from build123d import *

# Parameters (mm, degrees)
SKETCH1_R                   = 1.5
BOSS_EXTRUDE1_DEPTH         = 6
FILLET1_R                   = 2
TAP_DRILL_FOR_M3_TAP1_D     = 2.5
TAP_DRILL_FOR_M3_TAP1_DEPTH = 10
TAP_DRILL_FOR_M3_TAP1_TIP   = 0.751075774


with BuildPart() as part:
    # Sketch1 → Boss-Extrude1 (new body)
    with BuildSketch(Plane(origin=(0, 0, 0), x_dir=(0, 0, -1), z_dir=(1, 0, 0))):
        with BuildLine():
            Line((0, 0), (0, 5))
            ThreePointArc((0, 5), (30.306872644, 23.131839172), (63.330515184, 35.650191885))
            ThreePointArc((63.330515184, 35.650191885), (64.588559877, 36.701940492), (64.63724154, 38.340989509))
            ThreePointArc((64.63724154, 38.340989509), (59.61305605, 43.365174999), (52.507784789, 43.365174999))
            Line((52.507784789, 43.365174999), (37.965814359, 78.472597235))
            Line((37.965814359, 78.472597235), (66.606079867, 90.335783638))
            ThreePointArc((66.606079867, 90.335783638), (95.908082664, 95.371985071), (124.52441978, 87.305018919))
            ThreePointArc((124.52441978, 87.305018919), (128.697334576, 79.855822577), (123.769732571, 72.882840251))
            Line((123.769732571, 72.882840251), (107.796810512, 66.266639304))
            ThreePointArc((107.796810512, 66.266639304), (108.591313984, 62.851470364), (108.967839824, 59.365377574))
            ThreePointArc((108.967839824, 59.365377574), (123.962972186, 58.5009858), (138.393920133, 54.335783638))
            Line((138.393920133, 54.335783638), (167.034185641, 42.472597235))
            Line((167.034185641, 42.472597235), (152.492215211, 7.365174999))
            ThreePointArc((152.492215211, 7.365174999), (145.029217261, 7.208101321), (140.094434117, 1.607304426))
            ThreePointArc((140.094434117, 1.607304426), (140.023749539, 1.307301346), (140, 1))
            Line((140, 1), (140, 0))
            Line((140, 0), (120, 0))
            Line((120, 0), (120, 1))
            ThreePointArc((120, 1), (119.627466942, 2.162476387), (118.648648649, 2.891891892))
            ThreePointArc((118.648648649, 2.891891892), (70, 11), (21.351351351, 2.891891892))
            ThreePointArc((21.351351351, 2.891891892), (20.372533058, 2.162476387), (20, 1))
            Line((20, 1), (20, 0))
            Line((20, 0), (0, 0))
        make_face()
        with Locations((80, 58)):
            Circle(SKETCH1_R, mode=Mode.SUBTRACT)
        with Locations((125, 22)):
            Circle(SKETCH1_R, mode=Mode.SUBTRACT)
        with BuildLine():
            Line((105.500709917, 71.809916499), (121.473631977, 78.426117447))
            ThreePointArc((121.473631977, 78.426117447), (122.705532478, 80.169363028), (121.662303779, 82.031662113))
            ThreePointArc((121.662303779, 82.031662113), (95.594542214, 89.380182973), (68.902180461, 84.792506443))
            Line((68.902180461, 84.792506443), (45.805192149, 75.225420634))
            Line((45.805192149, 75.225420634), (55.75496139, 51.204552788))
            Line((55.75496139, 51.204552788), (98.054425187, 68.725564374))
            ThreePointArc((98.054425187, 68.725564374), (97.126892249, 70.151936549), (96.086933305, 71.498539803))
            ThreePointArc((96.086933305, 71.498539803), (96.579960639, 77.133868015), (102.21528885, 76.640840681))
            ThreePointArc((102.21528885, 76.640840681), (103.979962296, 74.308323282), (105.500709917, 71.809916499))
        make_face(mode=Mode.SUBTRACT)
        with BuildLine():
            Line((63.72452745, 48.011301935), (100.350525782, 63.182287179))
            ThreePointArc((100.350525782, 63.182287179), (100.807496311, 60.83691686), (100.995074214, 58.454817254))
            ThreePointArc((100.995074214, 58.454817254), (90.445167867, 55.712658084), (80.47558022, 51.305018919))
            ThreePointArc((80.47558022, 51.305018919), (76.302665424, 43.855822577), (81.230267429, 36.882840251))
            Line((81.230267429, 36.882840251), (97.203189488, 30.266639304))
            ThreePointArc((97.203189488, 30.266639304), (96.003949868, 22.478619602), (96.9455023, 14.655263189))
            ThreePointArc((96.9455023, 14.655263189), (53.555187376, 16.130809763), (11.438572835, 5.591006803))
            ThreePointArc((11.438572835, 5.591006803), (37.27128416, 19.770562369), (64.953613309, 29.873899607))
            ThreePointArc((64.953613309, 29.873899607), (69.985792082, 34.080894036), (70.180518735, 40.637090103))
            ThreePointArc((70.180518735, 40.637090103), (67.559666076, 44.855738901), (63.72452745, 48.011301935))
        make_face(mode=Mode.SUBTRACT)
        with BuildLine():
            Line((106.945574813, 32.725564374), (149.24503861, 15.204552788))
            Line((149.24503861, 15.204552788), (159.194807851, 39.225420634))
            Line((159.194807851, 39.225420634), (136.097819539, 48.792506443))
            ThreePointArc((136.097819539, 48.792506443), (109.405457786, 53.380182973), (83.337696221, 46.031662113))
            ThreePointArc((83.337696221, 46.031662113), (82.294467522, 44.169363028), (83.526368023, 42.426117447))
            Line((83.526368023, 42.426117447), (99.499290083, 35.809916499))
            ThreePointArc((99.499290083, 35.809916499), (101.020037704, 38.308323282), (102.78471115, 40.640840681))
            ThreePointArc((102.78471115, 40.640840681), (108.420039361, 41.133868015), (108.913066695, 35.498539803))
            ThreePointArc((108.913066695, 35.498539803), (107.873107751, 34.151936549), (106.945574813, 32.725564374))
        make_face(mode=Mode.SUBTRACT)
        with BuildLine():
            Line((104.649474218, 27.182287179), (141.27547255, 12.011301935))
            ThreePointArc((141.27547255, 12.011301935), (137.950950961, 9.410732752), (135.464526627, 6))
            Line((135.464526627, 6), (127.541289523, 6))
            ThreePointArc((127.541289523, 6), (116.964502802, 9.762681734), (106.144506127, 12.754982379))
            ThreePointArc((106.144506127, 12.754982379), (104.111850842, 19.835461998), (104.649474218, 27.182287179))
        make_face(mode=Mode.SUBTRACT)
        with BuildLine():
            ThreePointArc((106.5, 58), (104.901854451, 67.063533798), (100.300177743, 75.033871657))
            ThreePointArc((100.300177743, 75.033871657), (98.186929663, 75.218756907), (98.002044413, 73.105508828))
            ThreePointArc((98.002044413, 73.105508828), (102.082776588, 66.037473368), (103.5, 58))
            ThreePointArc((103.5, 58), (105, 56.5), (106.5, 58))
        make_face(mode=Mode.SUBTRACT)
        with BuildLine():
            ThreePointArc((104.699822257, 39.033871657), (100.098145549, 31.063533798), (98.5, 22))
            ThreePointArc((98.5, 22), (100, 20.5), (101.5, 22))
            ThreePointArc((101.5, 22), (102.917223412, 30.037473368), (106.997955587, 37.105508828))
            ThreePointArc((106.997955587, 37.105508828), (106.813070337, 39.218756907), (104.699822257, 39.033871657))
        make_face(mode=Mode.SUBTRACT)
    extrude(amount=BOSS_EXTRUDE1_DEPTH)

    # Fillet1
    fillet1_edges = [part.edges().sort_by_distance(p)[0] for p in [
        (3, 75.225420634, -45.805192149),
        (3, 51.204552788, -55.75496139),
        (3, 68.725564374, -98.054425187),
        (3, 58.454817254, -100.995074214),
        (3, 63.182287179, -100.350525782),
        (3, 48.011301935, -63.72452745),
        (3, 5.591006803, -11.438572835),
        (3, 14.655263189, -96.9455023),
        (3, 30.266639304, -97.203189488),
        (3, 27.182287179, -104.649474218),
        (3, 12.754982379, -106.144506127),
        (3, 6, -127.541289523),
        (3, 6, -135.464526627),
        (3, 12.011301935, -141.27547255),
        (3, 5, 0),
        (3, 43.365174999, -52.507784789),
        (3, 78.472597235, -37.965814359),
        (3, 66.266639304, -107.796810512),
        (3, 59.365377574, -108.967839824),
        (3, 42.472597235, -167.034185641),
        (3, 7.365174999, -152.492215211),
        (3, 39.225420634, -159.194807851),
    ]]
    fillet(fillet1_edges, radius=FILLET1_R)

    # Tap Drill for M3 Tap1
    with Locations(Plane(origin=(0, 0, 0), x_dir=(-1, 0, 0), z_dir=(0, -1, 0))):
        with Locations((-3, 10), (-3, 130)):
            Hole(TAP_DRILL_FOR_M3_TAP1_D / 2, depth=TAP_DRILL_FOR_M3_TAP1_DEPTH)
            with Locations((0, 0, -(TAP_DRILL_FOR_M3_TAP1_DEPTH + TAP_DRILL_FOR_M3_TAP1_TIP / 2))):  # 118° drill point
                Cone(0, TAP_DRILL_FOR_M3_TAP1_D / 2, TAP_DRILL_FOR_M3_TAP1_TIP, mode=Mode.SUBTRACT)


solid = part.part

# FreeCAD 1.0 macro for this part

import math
import FreeCAD as App
import Part
import Sketcher
from FreeCAD import Vector
Q = App.Units.Quantity


def edges_at(feature, points):
    """Names of the edges that pass closest to the given points."""
    edges = feature.Shape.Edges
    near = lambda p: min(range(len(edges)), key=lambda i: edges[i].distToShape(Part.Vertex(*p))[0])
    return sorted({f"Edge{near(p) + 1}" for p in points})

doc = App.newDocument("Part")
params = doc.addObject("Spreadsheet::Sheet", "Params")
for row, (alias, value) in enumerate([
    ("sketch1_diameter", "3 mm"),
    ("sketch1_radius", "2 mm"),
    ("sketch1_radius2", "150 mm"),
    ("sketch1_radius3", "29 mm"),
    ("sketch1_radius4", "8 mm"),
    ("pad1_length", "6 mm"),
    ("fillet_radius", "2 mm"),
    ("sketch2_diameter", "2.5 mm"),
    ("hole_diameter", "2.5 mm"),
    ("hole_depth", "10 mm"),
], start=1):
    params.set(f"A{row}", alias)
    params.set(f"B{row}", "=" + value)
    params.setAlias(f"B{row}", alias)

body = doc.addObject("PartDesign::Body", "Body")

sketch1 = body.newObject("Sketcher::SketchObject", "Sketch")
sketch1.AttachmentSupport = (doc.getObject("YZ_Plane"), [""])
sketch1.MapMode = "FlatFace"
sketch1.addGeometry([
    Part.LineSegment(Vector(5, 0, 0), Vector(0, 0, 0)),
    Part.LineSegment(Vector(0, 0, 0), Vector(0, -20, 0)),
    Part.LineSegment(Vector(0, -20, 0), Vector(1, -20, 0)),
    Part.ArcOfCircle(Part.Circle(Vector(1, -22, 0), Vector(0, 0, 1), 2), math.radians(19), math.radians(90)),
    Part.ArcOfCircle(Part.Circle(Vector(-139, -70, 0), Vector(0, 0, 1), 150), math.radians(-19), math.radians(19)),
    Part.ArcOfCircle(Part.Circle(Vector(1, -118, 0), Vector(0, 0, 1), 2), math.radians(-90), math.radians(-19)),
    Part.LineSegment(Vector(1, -120, 0), Vector(0, -120, 0)),
    Part.LineSegment(Vector(0, -120, 0), Vector(0, -140, 0)),
    Part.LineSegment(Vector(0, -140, 0), Vector(1, -140, 0)),
    Part.ArcOfCircle(Part.Circle(Vector(1, -142, 0), Vector(0, 0, 1), 2), math.radians(72.32), math.radians(90)),
    Part.ArcOfCircle(Part.Circle(Vector(-1.2, -148.9, 0), Vector(0, 0, 1), 9.3), math.radians(-23), math.radians(72)),
    Part.LineSegment(Vector(7.4, -152.5, 0), Vector(42.5, -167, 0)),
    Part.LineSegment(Vector(42.5, -167, 0), Vector(54.3, -138.4, 0)),
    Part.ArcOfCircle(Part.Circle(Vector(-7.9, -112.6, 0), Vector(0, 0, 1), 67.4), math.radians(-22), math.radians(3)),
    Part.ArcOfCircle(Part.Circle(Vector(58, -80, 0), Vector(0, 0, 1), 29), math.radians(-87.3), math.radians(-73.44)),
    Part.LineSegment(Vector(66.3, -107.8, 0), Vector(72.9, -123.8, 0)),
    Part.ArcOfCircle(Part.Circle(Vector(80.3, -120.7, 0), Vector(0, 0, 1), 8), math.radians(-157), math.radians(-28)),
    Part.ArcOfCircle(Part.Circle(Vector(28.1, -92.4, 0), Vector(0, 0, 1), 67.4), math.radians(-28), math.radians(22)),
    Part.LineSegment(Vector(90.3, -66.6, 0), Vector(78.5, -38, 0)),
    Part.LineSegment(Vector(78.5, -38, 0), Vector(43.4, -52.5, 0)),
    Part.ArcOfCircle(Part.Circle(Vector(34.8, -56.1, 0), Vector(0, 0, 1), 9.3), math.radians(-67), math.radians(22)),
    Part.ArcOfCircle(Part.Circle(Vector(37.6, -62.8, 0), Vector(0, 0, 1), 2), math.radians(-164), math.radians(-67)),
    Part.ArcOfCircle(Part.Circle(Vector(-156.9, -117.4, 0), Vector(0, 0, 1), 200), math.radians(16), math.radians(36)),
    Part.LineSegment(Vector(27.2, -104.6, 0), Vector(12, -141.3, 0)),
    Part.ArcOfCircle(Part.Circle(Vector(-1.2, -148.9, 0), Vector(0, 0, 1), 15.3), math.radians(30), math.radians(62)),
    Part.LineSegment(Vector(6, -135.5, 0), Vector(6, -127.5, 0)),
    Part.ArcOfCircle(Part.Circle(Vector(-139, -70, 0), Vector(0, 0, 1), 156), math.radians(-21.64), math.radians(-13.4)),
    Part.ArcOfCircle(Part.Circle(Vector(22, -125, 0), Vector(0, 0, 1), 21), math.radians(76), math.radians(116)),
    Part.Circle(Vector(22, -125, 0), Vector(0, 0, 1), 1.5),
    Part.ArcOfCircle(Part.Circle(Vector(22, -125, 0), Vector(0, 0, 1), 21), math.radians(50), math.radians(59.29)),
    Part.ArcOfCircle(Part.Circle(Vector(38.1, -105.8, 0), Vector(0, 0, 1), 4), math.radians(-130), math.radians(50)),
    Part.ArcOfCircle(Part.Circle(Vector(22, -125, 0), Vector(0, 0, 1), 29), math.radians(50), math.radians(61.56)),
    Part.LineSegment(Vector(35.8, -99.5, 0), Vector(42.4, -83.5, 0)),
    Part.ArcOfCircle(Part.Circle(Vector(44.3, -84.3, 0), Vector(0, 0, 1), 2), math.radians(28), math.radians(157)),
    Part.ArcOfCircle(Part.Circle(Vector(-7.9, -112.6, 0), Vector(0, 0, 1), 61.4), math.radians(-23), math.radians(28)),
    Part.LineSegment(Vector(48.8, -136.1, 0), Vector(39.2, -159.2, 0)),
    Part.LineSegment(Vector(39.2, -159.2, 0), Vector(15.2, -149.2, 0)),
    Part.LineSegment(Vector(15.2, -149.2, 0), Vector(32.7, -106.9, 0)),
    Part.ArcOfCircle(Part.Circle(Vector(38.1, -105.8, 0), Vector(0, 0, 1), 1.5), math.radians(-130), math.radians(50)),
    Part.ArcOfCircle(Part.Circle(Vector(22, -125, 0), Vector(0, 0, 1), 23.5), math.radians(50), math.radians(90)),
    Part.ArcOfCircle(Part.Circle(Vector(22, -100, 0), Vector(0, 0, 1), 1.5), math.radians(90), math.radians(270)),
    Part.ArcOfCircle(Part.Circle(Vector(22, -125, 0), Vector(0, 0, 1), 26.5), math.radians(50), math.radians(90)),
    Part.LineSegment(Vector(48, -63.7, 0), Vector(63.2, -100.4, 0)),
    Part.ArcOfCircle(Part.Circle(Vector(58, -80, 0), Vector(0, 0, 1), 21), math.radians(-88.76), math.radians(-75.71)),
    Part.ArcOfCircle(Part.Circle(Vector(-7.9, -112.6, 0), Vector(0, 0, 1), 67.4), math.radians(9.93), math.radians(28.49)),
    Part.ArcOfCircle(Part.Circle(Vector(44.3, -84.3, 0), Vector(0, 0, 1), 8), math.radians(28), math.radians(157)),
    Part.LineSegment(Vector(36.9, -81.2, 0), Vector(30.3, -97.2, 0)),
    Part.ArcOfCircle(Part.Circle(Vector(22, -125, 0), Vector(0, 0, 1), 29), math.radians(73), math.radians(105)),
    Part.ArcOfCircle(Part.Circle(Vector(-139, -70, 0), Vector(0, 0, 1), 156), math.radians(-10), math.radians(22)),
    Part.ArcOfCircle(Part.Circle(Vector(-156.9, -117.4, 0), Vector(0, 0, 1), 194), math.radians(15.69), math.radians(33.12)),
    Part.ArcOfCircle(Part.Circle(Vector(37.6, -62.8, 0), Vector(0, 0, 1), 8), math.radians(-164), math.radians(-67)),
    Part.ArcOfCircle(Part.Circle(Vector(34.8, -56.1, 0), Vector(0, 0, 1), 15.3), math.radians(-67), math.radians(-30)),
    Part.ArcOfCircle(Part.Circle(Vector(58, -105, 0), Vector(0, 0, 1), 1.5), math.radians(90), math.radians(270)),
    Part.ArcOfCircle(Part.Circle(Vector(58, -80, 0), Vector(0, 0, 1), 23.5), math.radians(-90), math.radians(-50)),
    Part.ArcOfCircle(Part.Circle(Vector(74.1, -99.2, 0), Vector(0, 0, 1), 1.5), math.radians(-50), math.radians(130)),
    Part.ArcOfCircle(Part.Circle(Vector(58, -80, 0), Vector(0, 0, 1), 26.5), math.radians(-90), math.radians(-50)),
    Part.Circle(Vector(58, -80, 0), Vector(0, 0, 1), 1.5),
    Part.ArcOfCircle(Part.Circle(Vector(58, -80, 0), Vector(0, 0, 1), 29), math.radians(-61.56), math.radians(-50)),
    Part.ArcOfCircle(Part.Circle(Vector(74.1, -99.2, 0), Vector(0, 0, 1), 4), math.radians(-50), math.radians(130)),
    Part.ArcOfCircle(Part.Circle(Vector(58, -80, 0), Vector(0, 0, 1), 21), math.radians(-59.29), math.radians(-50)),
    Part.LineSegment(Vector(68.7, -98.1, 0), Vector(51.2, -55.8, 0)),
    Part.LineSegment(Vector(51.2, -55.8, 0), Vector(75.2, -45.8, 0)),
    Part.LineSegment(Vector(75.2, -45.8, 0), Vector(84.8, -68.9, 0)),
    Part.ArcOfCircle(Part.Circle(Vector(28.1, -92.4, 0), Vector(0, 0, 1), 61.4), math.radians(-28), math.radians(23)),
    Part.ArcOfCircle(Part.Circle(Vector(80.3, -120.7, 0), Vector(0, 0, 1), 2), math.radians(-157), math.radians(-28)),
    Part.LineSegment(Vector(78.4, -121.5, 0), Vector(71.8, -105.5, 0)),
], False)
sketch1.addConstraint([
    Sketcher.Constraint("Coincident", 0, 2, 1, 1),
    Sketcher.Constraint("Coincident", 1, 2, 2, 1),
    Sketcher.Constraint("Tangent", 2, 2, 3, 2),
    Sketcher.Constraint("Tangent", 3, 1, 4, 2),
    Sketcher.Constraint("Tangent", 4, 1, 5, 2),
    Sketcher.Constraint("Tangent", 5, 1, 6, 1),
    Sketcher.Constraint("Coincident", 6, 2, 7, 1),
    Sketcher.Constraint("Coincident", 7, 2, 8, 1),
    Sketcher.Constraint("Tangent", 8, 2, 9, 2),
    Sketcher.Constraint("Tangent", 9, 1, 10, 2),
    Sketcher.Constraint("Coincident", 10, 1, 11, 1),
    Sketcher.Constraint("Coincident", 11, 2, 12, 1),
    Sketcher.Constraint("Tangent", 12, 2, 13, 1),
    Sketcher.Constraint("Coincident", 13, 2, 14, 1),
    Sketcher.Constraint("Coincident", 14, 2, 15, 1),
    Sketcher.Constraint("Tangent", 15, 2, 16, 1),
    Sketcher.Constraint("Tangent", 16, 2, 17, 1),
    Sketcher.Constraint("Tangent", 17, 2, 18, 1),
    Sketcher.Constraint("Coincident", 18, 2, 19, 1),
    Sketcher.Constraint("Coincident", 19, 2, 20, 2),
    Sketcher.Constraint("Tangent", 20, 1, 21, 2),
    Sketcher.Constraint("Tangent", 21, 1, 22, 1),
    Sketcher.Constraint("Coincident", 22, 2, 0, 1),
    Sketcher.Constraint("Coincident", 23, 2, 24, 1),
    Sketcher.Constraint("Coincident", 24, 2, 25, 1),
    Sketcher.Constraint("Coincident", 25, 2, 26, 1),
    Sketcher.Constraint("Coincident", 26, 2, 27, 2),
    Sketcher.Constraint("Coincident", 27, 1, 23, 1),
    Sketcher.Constraint("Tangent", 29, 1, 30, 1),
    Sketcher.Constraint("Tangent", 30, 2, 31, 1),
    Sketcher.Constraint("Coincident", 31, 2, 32, 1),
    Sketcher.Constraint("Tangent", 32, 2, 33, 2),
    Sketcher.Constraint("Tangent", 33, 1, 34, 2),
    Sketcher.Constraint("Tangent", 34, 1, 35, 1),
    Sketcher.Constraint("Coincident", 35, 2, 36, 1),
    Sketcher.Constraint("Coincident", 36, 2, 37, 1),
    Sketcher.Constraint("Coincident", 37, 2, 29, 2),
    Sketcher.Constraint("Tangent", 38, 1, 39, 1),
    Sketcher.Constraint("Tangent", 39, 2, 40, 2),
    Sketcher.Constraint("Tangent", 40, 1, 41, 2),
    Sketcher.Constraint("Tangent", 41, 1, 38, 2),
    Sketcher.Constraint("Coincident", 42, 2, 43, 2),
    Sketcher.Constraint("Coincident", 43, 1, 44, 1),
    Sketcher.Constraint("Tangent", 44, 2, 45, 1),
    Sketcher.Constraint("Tangent", 45, 2, 46, 1),
    Sketcher.Constraint("Coincident", 46, 2, 47, 1),
    Sketcher.Constraint("Coincident", 47, 2, 48, 1),
    Sketcher.Constraint("Coincident", 48, 2, 49, 2),
    Sketcher.Constraint("Tangent", 49, 1, 50, 1),
    Sketcher.Constraint("Tangent", 50, 2, 51, 1),
    Sketcher.Constraint("Coincident", 51, 2, 42, 1),
    Sketcher.Constraint("Tangent", 52, 1, 53, 1),
    Sketcher.Constraint("Tangent", 53, 2, 54, 2),
    Sketcher.Constraint("Tangent", 54, 1, 55, 2),
    Sketcher.Constraint("Tangent", 55, 1, 52, 2),
    Sketcher.Constraint("Tangent", 57, 2, 58, 1),
    Sketcher.Constraint("Tangent", 58, 2, 59, 2),
    Sketcher.Constraint("Coincident", 59, 1, 60, 1),
    Sketcher.Constraint("Coincident", 60, 2, 61, 1),
    Sketcher.Constraint("Coincident", 61, 2, 62, 1),
    Sketcher.Constraint("Tangent", 62, 2, 63, 2),
    Sketcher.Constraint("Tangent", 63, 1, 64, 2),
    Sketcher.Constraint("Tangent", 64, 1, 65, 1),
    Sketcher.Constraint("Coincident", 65, 2, 57, 1),
    Sketcher.Constraint("Horizontal", 0),
    Sketcher.Constraint("Vertical", 1),
    Sketcher.Constraint("Horizontal", 2),
    Sketcher.Constraint("Horizontal", 6),
    Sketcher.Constraint("Vertical", 7),
    Sketcher.Constraint("Horizontal", 8),
    Sketcher.Constraint("Vertical", 25),
    Sketcher.Constraint("Coincident", 0, 2, -1, 1),
    Sketcher.Constraint("Coincident", 24, 3, 10, 3),
    Sketcher.Constraint("Coincident", 26, 3, 4, 3),
    Sketcher.Constraint("Coincident", 28, 3, 27, 3),
    Sketcher.Constraint("Coincident", 29, 3, 27, 3),
    Sketcher.Constraint("Coincident", 31, 3, 27, 3),
    Sketcher.Constraint("Coincident", 34, 3, 13, 3),
    Sketcher.Constraint("Coincident", 38, 3, 30, 3),
    Sketcher.Constraint("Coincident", 39, 3, 27, 3),
    Sketcher.Constraint("Coincident", 41, 3, 27, 3),
    Sketcher.Constraint("Coincident", 43, 3, 14, 3),
    Sketcher.Constraint("Coincident", 44, 3, 13, 3),
    Sketcher.Constraint("Coincident", 45, 3, 33, 3),
    Sketcher.Constraint("Coincident", 47, 3, 27, 3),
    Sketcher.Constraint("Coincident", 48, 3, 4, 3),
    Sketcher.Constraint("Coincident", 49, 3, 22, 3),
    Sketcher.Constraint("Coincident", 50, 3, 21, 3),
    Sketcher.Constraint("Coincident", 51, 3, 20, 3),
    Sketcher.Constraint("Coincident", 53, 3, 14, 3),
    Sketcher.Constraint("Coincident", 55, 3, 14, 3),
    Sketcher.Constraint("Coincident", 56, 3, 14, 3),
    Sketcher.Constraint("Coincident", 57, 3, 14, 3),
    Sketcher.Constraint("Coincident", 58, 3, 54, 3),
    Sketcher.Constraint("Coincident", 59, 3, 14, 3),
    Sketcher.Constraint("Coincident", 63, 3, 17, 3),
    Sketcher.Constraint("Coincident", 64, 3, 16, 3),
    Sketcher.Constraint("Equal", 3, 5),
    Sketcher.Constraint("Equal", 5, 9),
    Sketcher.Constraint("Equal", 13, 17),
    Sketcher.Constraint("Equal", 10, 20),
    Sketcher.Constraint("Equal", 9, 21),
    Sketcher.Constraint("Equal", 27, 29),
    Sketcher.Constraint("Equal", 14, 31),
    Sketcher.Constraint("Equal", 21, 33),
    Sketcher.Constraint("Equal", 28, 38),
    Sketcher.Constraint("Equal", 29, 43),
    Sketcher.Constraint("Equal", 17, 44),
    Sketcher.Constraint("Equal", 16, 45),
    Sketcher.Constraint("Equal", 31, 47),
    Sketcher.Constraint("Equal", 26, 48),
    Sketcher.Constraint("Equal", 45, 50),
    Sketcher.Constraint("Equal", 24, 51),
    Sketcher.Constraint("Equal", 40, 52),
    Sketcher.Constraint("Equal", 39, 53),
    Sketcher.Constraint("Equal", 54, 56),
    Sketcher.Constraint("Equal", 47, 57),
    Sketcher.Constraint("Equal", 34, 63),
    Sketcher.Constraint("PointOnObject", 6, 2, -2),
    Sketcher.Constraint("Perpendicular", 11, 12),
    Sketcher.Constraint("Parallel", 15, 18),
    Sketcher.Constraint("Perpendicular", 18, 19),
    Sketcher.Constraint("Parallel", 12, 23),
    Sketcher.Constraint("Parallel", 23, 32),
    Sketcher.Constraint("Parallel", 32, 35),
    Sketcher.Constraint("Perpendicular", 35, 36),
    Sketcher.Constraint("Perpendicular", 36, 37),
    Sketcher.Constraint("Perpendicular", 19, 42),
    Sketcher.Constraint("Parallel", 37, 46),
    Sketcher.Constraint("Parallel", 42, 60),
    Sketcher.Constraint("Perpendicular", 60, 61),
    Sketcher.Constraint("Perpendicular", 61, 62),
    Sketcher.Constraint("Parallel", 62, 65),
    Sketcher.Constraint("Vertical", 3, 3, 5, 3),
    Sketcher.Constraint("Vertical", 5, 3, 9, 3),
    Sketcher.Constraint("Vertical", 39, 3, 40, 3),
    Sketcher.Constraint("Vertical", 43, 3, 52, 3),
    Sketcher.Constraint("Equal", 1, 7),
    Sketcher.Constraint("Equal", 12, 18),
    Sketcher.Constraint("Equal", 11, 19),
    Sketcher.Constraint("Equal", 15, 32),
    Sketcher.Constraint("Equal", 23, 42),
    Sketcher.Constraint("Equal", 32, 46),
    Sketcher.Constraint("Equal", 37, 60),
    Sketcher.Constraint("Equal", 36, 61),
    Sketcher.Constraint("Equal", 35, 62),
    Sketcher.Constraint("Equal", 46, 65),
    Sketcher.Constraint("Diameter", 28, Q("3 mm")),
    Sketcher.Constraint("Radius", 3, Q("2 mm")),
    Sketcher.Constraint("Radius", 4, Q("150 mm")),
    Sketcher.Constraint("Radius", 14, Q("29 mm")),
    Sketcher.Constraint("Radius", 16, Q("8 mm")),
    Sketcher.Constraint("Radius", 22, Q("200 mm")),
    Sketcher.Constraint("Radius", 26, Q("156 mm")),
    Sketcher.Constraint("Radius", 27, Q("21 mm")),
    Sketcher.Constraint("DistanceX", 0, 2, 0, 1, Q("5 mm")),
    Sketcher.Constraint("DistanceX", 2, 1, 2, 2, Q("1 mm")),
    Sketcher.Constraint("DistanceY", 1, 2, 1, 1, Q("20 mm")),
    Sketcher.Constraint("Distance", 11, Q("38 mm")),
    Sketcher.Constraint("Distance", 12, Q("31 mm")),
    Sketcher.Constraint("Distance", 35, Q("25 mm")),
    Sketcher.Constraint("Distance", 36, Q("26 mm")),
    Sketcher.Constraint("DistanceX", 4, 3, -1, 1, Q("139 mm")),
    Sketcher.Constraint("DistanceX", -1, 1, 14, 3, Q("58 mm")),
    Sketcher.Constraint("DistanceY", 14, 3, -1, 1, Q("80 mm")),
    Sketcher.Constraint("DistanceX", -1, 1, 27, 3, Q("22 mm")),
    Sketcher.Constraint("DistanceY", 27, 3, -1, 1, Q("125 mm")),
    Sketcher.Constraint("DistanceX", -1, 1, 24, 2, Q("6 mm")),
    Sketcher.Constraint("Angle", 11, Q("-22.5 deg")),
    Sketcher.Constraint("Angle", 15, Q("-67.5 deg")),
    Sketcher.Constraint("Radius", 13, Q("67.370191 mm")),
    Sketcher.Constraint("Radius", 10, Q("9.283484 mm")),
    Sketcher.Constraint("DistanceX", -1, 1, 23, 2, Q("12.011302 mm")),
    Sketcher.Constraint("DistanceX", -1, 1, 49, 1, Q("29.8739 mm")),
    Sketcher.Constraint("DistanceX", -1, 1, 51, 2, Q("48.011302 mm")),
    Sketcher.Constraint("Distance", 37, Q("45.78461 mm")),
    Sketcher.Constraint("DistanceY", 25, 1, 25, 2, Q("7.923237 mm")),
    Sketcher.Constraint("DistanceX", -1, 1, 30, 3, Q("38.06969 mm")),
    Sketcher.Constraint("DistanceX", -1, 1, 54, 3, Q("74.06969 mm")),
])
sketch1.setExpression("Constraints[147]", "Params.sketch1_diameter")
sketch1.setExpression("Constraints[148]", "Params.sketch1_radius")
sketch1.setExpression("Constraints[149]", "Params.sketch1_radius2")
sketch1.setExpression("Constraints[150]", "Params.sketch1_radius3")
sketch1.setExpression("Constraints[151]", "Params.sketch1_radius4")
pad1 = body.newObject("PartDesign::Pad", "Pad")
pad1.Profile = sketch1
pad1.setExpression("Length", "Params.pad1_length")
doc.recompute()

fillet = body.newObject("PartDesign::Fillet", "Fillet")
fillet.Base = (pad1, edges_at(pad1, [
    (3, 75.225, -45.805),
    (3, 51.205, -55.755),
    (3, 68.726, -98.054),
    (3, 58.455, -100.995),
    (3, 63.182, -100.351),
    (3, 48.011, -63.725),
    (3, 5.591, -11.439),
    (3, 14.655, -96.946),
    (3, 30.267, -97.203),
    (3, 27.182, -104.649),
    (3, 12.755, -106.145),
    (3, 6, -127.541),
    (3, 6, -135.465),
    (3, 12.011, -141.275),
    (3, 5, 0),
    (3, 43.365, -52.508),
    (3, 78.473, -37.966),
    (3, 66.267, -107.797),
    (3, 59.365, -108.968),
    (3, 42.473, -167.034),
    (3, 7.365, -152.492),
    (3, 39.225, -159.195),
]))
fillet.setExpression("Radius", "Params.fillet_radius")

sketch2 = body.newObject("Sketcher::SketchObject", "Sketch001")
sketch2.AttachmentSupport = (doc.getObject("XZ_Plane"), [""])
sketch2.MapMode = "FlatFace"
sketch2.addGeometry([
    Part.Circle(Vector(3, -10, 0), Vector(0, 0, 1), 1.2),
    Part.Circle(Vector(3, -130, 0), Vector(0, 0, 1), 1.2),
], False)
sketch2.addConstraint([
    Sketcher.Constraint("Equal", 0, 1),
    Sketcher.Constraint("Vertical", 0, 3, 1, 3),
    Sketcher.Constraint("Diameter", 0, Q("2.5 mm")),
    Sketcher.Constraint("DistanceX", -1, 1, 0, 3, Q("3 mm")),
    Sketcher.Constraint("DistanceY", 0, 3, -1, 1, Q("10 mm")),
    Sketcher.Constraint("DistanceY", 1, 3, -1, 1, Q("130 mm")),
])
sketch2.setExpression("Constraints[2]", "Params.sketch2_diameter")
doc.recompute()
hole = body.newObject("PartDesign::Hole", "Hole")
hole.Profile = sketch2
hole.ThreadType = "None"
hole.setExpression("Diameter", "Params.hole_diameter")
hole.DepthType = "Dimension"
hole.setExpression("Depth", "Params.hole_depth")
hole.DrillPoint = "Angled"
hole.DrillPointAngle = 118

doc.recompute()
